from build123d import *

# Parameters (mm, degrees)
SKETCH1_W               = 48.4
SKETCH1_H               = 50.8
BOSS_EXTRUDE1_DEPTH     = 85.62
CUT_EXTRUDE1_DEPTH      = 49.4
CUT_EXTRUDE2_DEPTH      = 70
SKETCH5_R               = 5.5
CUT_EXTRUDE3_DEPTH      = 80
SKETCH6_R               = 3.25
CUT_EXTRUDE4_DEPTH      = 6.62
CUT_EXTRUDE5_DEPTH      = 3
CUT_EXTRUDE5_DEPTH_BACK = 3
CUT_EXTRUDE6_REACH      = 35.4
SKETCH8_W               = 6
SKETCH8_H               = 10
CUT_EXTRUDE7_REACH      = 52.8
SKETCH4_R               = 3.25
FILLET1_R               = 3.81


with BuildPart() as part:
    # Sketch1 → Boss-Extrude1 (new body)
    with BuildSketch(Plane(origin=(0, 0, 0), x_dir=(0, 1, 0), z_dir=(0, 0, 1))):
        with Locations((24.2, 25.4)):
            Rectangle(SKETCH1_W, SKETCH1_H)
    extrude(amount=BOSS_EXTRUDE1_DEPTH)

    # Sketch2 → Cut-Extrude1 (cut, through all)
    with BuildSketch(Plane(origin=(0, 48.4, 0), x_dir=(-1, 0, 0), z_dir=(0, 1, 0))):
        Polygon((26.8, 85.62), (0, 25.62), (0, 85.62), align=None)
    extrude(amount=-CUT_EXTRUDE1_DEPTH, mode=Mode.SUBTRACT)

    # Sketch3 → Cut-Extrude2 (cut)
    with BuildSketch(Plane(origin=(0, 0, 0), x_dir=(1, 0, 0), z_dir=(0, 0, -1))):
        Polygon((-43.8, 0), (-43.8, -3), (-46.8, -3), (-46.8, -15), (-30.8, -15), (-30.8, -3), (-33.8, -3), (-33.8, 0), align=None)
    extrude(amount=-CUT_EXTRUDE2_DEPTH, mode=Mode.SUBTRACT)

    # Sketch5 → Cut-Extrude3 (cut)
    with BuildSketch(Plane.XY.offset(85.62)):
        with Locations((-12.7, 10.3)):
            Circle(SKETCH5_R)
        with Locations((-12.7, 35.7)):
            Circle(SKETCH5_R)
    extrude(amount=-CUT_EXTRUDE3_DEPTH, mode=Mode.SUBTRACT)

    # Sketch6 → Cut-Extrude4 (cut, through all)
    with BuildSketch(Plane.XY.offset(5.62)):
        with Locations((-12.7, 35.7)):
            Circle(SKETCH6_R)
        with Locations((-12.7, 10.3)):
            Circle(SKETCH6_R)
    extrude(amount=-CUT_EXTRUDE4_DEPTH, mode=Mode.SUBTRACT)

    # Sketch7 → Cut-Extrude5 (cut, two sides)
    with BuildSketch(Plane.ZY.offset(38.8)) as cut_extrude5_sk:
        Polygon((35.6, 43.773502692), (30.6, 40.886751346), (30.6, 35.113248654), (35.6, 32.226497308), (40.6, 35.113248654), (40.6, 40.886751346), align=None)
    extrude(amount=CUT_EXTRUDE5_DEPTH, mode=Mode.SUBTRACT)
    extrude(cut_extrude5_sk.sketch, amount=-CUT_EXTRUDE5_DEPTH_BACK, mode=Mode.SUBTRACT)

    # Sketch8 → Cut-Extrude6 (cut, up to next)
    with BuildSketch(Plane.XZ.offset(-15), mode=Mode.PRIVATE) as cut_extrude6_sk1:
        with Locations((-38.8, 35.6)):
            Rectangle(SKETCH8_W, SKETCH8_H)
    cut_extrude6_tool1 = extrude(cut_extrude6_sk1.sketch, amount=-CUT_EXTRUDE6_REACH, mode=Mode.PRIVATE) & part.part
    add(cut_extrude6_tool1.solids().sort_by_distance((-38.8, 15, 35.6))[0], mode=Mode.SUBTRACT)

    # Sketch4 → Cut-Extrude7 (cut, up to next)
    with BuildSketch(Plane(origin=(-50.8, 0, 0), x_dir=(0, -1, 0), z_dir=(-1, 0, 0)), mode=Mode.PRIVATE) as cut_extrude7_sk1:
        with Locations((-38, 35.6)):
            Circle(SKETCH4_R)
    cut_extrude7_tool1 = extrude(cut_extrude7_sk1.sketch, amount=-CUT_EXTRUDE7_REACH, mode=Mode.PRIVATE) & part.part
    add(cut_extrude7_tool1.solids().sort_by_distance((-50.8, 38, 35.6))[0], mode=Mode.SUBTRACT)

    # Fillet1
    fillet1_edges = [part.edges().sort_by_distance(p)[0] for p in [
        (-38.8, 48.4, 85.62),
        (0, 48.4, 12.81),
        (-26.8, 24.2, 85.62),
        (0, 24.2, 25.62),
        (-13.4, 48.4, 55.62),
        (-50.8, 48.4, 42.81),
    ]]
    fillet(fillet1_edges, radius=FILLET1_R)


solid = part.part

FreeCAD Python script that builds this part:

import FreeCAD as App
import Part
import Sketcher

V = App.Vector
Q = App.Units.Quantity


def edges_at(feature, points):
    """Names of the edges that pass closest to the given points."""
    edges = feature.Shape.Edges
    near = lambda p: min(range(len(edges)), key=lambda i: edges[i].distToShape(Part.Vertex(*p))[0])
    return sorted({f"Edge{near(p) + 1}" for p in points})

doc = App.newDocument("Part")
body = doc.addObject("PartDesign::Body", "Body")

sketch1 = body.newObject("Sketcher::SketchObject", "Sketch")
sketch1.AttachmentSupport = (doc.getObject("XY_Plane"), [""])
sketch1.MapMode = "FlatFace"
sketch1.addGeometry(Part.LineSegment(V(-51, 0, 0), V(0, 0, 0)), False)
sketch1.addGeometry(Part.LineSegment(V(0, 0, 0), V(0, 48, 0)), False)
sketch1.addGeometry(Part.LineSegment(V(0, 48, 0), V(-51, 48, 0)), False)
sketch1.addGeometry(Part.LineSegment(V(-51, 48, 0), V(-51, 0, 0)), False)
sketch1.addConstraint(Sketcher.Constraint("Coincident", 0, 2, 1, 1))
sketch1.addConstraint(Sketcher.Constraint("Coincident", 1, 2, 2, 1))
sketch1.addConstraint(Sketcher.Constraint("Coincident", 2, 2, 3, 1))
sketch1.addConstraint(Sketcher.Constraint("Coincident", 3, 2, 0, 1))
sketch1.addConstraint(Sketcher.Constraint("Horizontal", 0))
sketch1.addConstraint(Sketcher.Constraint("Vertical", 1))
sketch1.addConstraint(Sketcher.Constraint("Horizontal", 2))
sketch1.addConstraint(Sketcher.Constraint("Vertical", 3))
sketch1.addConstraint(Sketcher.Constraint("Coincident", 0, 2, -1, 1))
sketch1.addConstraint(Sketcher.Constraint("DistanceX", 0, 1, 0, 2, Q("50.8 mm")))
sketch1.addConstraint(Sketcher.Constraint("DistanceY", 1, 1, 1, 2, Q("48.4 mm")))
pad1 = body.newObject("PartDesign::Pad", "Pad")
pad1.Profile = sketch1
pad1.Length = 85.62

sketch2 = body.newObject("Sketcher::SketchObject", "Sketch001")
sketch2.AttachmentSupport = (doc.getObject("XZ_Plane"), [""])
sketch2.MapMode = "FlatFace"
sketch2.AttachmentOffset = App.Placement(V(0, 0, -48.4), App.Rotation())
sketch2.addGeometry(Part.LineSegment(V(0, 26, 0), V(-27, 86, 0)), False)
sketch2.addGeometry(Part.LineSegment(V(-27, 86, 0), V(0, 86, 0)), False)
sketch2.addGeometry(Part.LineSegment(V(0, 86, 0), V(0, 26, 0)), False)
sketch2.addConstraint(Sketcher.Constraint("Coincident", 0, 2, 1, 1))
sketch2.addConstraint(Sketcher.Constraint("Coincident", 1, 2, 2, 1))
sketch2.addConstraint(Sketcher.Constraint("Coincident", 2, 2, 0, 1))
sketch2.addConstraint(Sketcher.Constraint("Horizontal", 1))
sketch2.addConstraint(Sketcher.Constraint("Vertical", 2))
sketch2.addConstraint(Sketcher.Constraint("PointOnObject", 1, 2, -2))
sketch2.addConstraint(Sketcher.Constraint("DistanceY", 2, 2, 2, 1, Q("60 mm")))
sketch2.addConstraint(Sketcher.Constraint("DistanceX", 1, 1, 1, 2, Q("26.8 mm")))
sketch2.addConstraint(Sketcher.Constraint("DistanceY", -1, 1, 0, 2, Q("85.62 mm")))
pocket1 = body.newObject("PartDesign::Pocket", "Pocket")
pocket1.Profile = sketch2
pocket1.Type = "ThroughAll"
pocket1.Reversed = True

sketch3 = body.newObject("Sketcher::SketchObject", "Sketch002")
sketch3.AttachmentSupport = (doc.getObject("XY_Plane"), [""])
sketch3.MapMode = "FlatFace"
sketch3.addGeometry(Part.LineSegment(V(-43.8, 0, 0), V(-43.8, 3, 0)), False)
sketch3.addGeometry(Part.LineSegment(V(-43.8, 3, 0), V(-46.8, 3, 0)), False)
sketch3.addGeometry(Part.LineSegment(V(-46.8, 3, 0), V(-46.8, 15, 0)), False)
sketch3.addGeometry(Part.LineSegment(V(-46.8, 15, 0), V(-30.8, 15, 0)), False)
sketch3.addGeometry(Part.LineSegment(V(-30.8, 15, 0), V(-30.8, 3, 0)), False)
sketch3.addGeometry(Part.LineSegment(V(-30.8, 3, 0), V(-33.8, 3, 0)), False)
sketch3.addGeometry(Part.LineSegment(V(-33.8, 3, 0), V(-33.8, 0, 0)), False)
sketch3.addGeometry(Part.LineSegment(V(-33.8, 0, 0), V(-43.8, 0, 0)), False)
sketch3.addConstraint(Sketcher.Constraint("Coincident", 0, 2, 1, 1))
sketch3.addConstraint(Sketcher.Constraint("Coincident", 1, 2, 2, 1))
sketch3.addConstraint(Sketcher.Constraint("Coincident", 2, 2, 3, 1))
sketch3.addConstraint(Sketcher.Constraint("Coincident", 3, 2, 4, 1))
sketch3.addConstraint(Sketcher.Constraint("Coincident", 4, 2, 5, 1))
sketch3.addConstraint(Sketcher.Constraint("Coincident", 5, 2, 6, 1))
sketch3.addConstraint(Sketcher.Constraint("Coincident", 6, 2, 7, 1))
sketch3.addConstraint(Sketcher.Constraint("Coincident", 7, 2, 0, 1))
sketch3.addConstraint(Sketcher.Constraint("Vertical", 0))
sketch3.addConstraint(Sketcher.Constraint("Horizontal", 1))
sketch3.addConstraint(Sketcher.Constraint("Vertical", 2))
sketch3.addConstraint(Sketcher.Constraint("Horizontal", 3))
sketch3.addConstraint(Sketcher.Constraint("Vertical", 4))
sketch3.addConstraint(Sketcher.Constraint("Horizontal", 5))
sketch3.addConstraint(Sketcher.Constraint("Vertical", 6))
sketch3.addConstraint(Sketcher.Constraint("Horizontal", 7))
sketch3.addConstraint(Sketcher.Constraint("PointOnObject", 6, 2, -1))
sketch3.addConstraint(Sketcher.Constraint("Horizontal", 1, 2, 4, 2))
sketch3.addConstraint(Sketcher.Constraint("Equal", 1, 5))
sketch3.addConstraint(Sketcher.Constraint("Equal", 5, 0))
sketch3.addConstraint(Sketcher.Constraint("DistanceX", 1, 2, 1, 1, Q("3 mm")))
sketch3.addConstraint(Sketcher.Constraint("DistanceX", 3, 1, 3, 2, Q("16 mm")))
sketch3.addConstraint(Sketcher.Constraint("DistanceY", 2, 1, 2, 2, Q("12 mm")))
sketch3.addConstraint(Sketcher.Constraint("DistanceX", 0, 2, -1, 1, Q("43.8 mm")))
pocket2 = body.newObject("PartDesign::Pocket", "Pocket001")
pocket2.Profile = sketch3
pocket2.Length = 70
pocket2.Reversed = True

sketch4 = body.newObject("Sketcher::SketchObject", "Sketch003")
sketch4.AttachmentSupport = (doc.getObject("XY_Plane"), [""])
sketch4.MapMode = "FlatFace"
sketch4.AttachmentOffset = App.Placement(V(0, 0, 85.62), App.Rotation())
sketch4.addGeometry(Part.Circle(V(-13, 10, 0), V(0, 0, 1), 6), False)
sketch4.addGeometry(Part.Circle(V(-13, 36, 0), V(0, 0, 1), 6), False)
sketch4.addConstraint(Sketcher.Constraint("Equal", 0, 1))
sketch4.addConstraint(Sketcher.Constraint("Vertical", 0, 3, 1, 3))
sketch4.addConstraint(Sketcher.Constraint("Diameter", 0, Q("11 mm")))
sketch4.addConstraint(Sketcher.Constraint("DistanceX", 0, 3, -1, 1, Q("12.7 mm")))
sketch4.addConstraint(Sketcher.Constraint("DistanceY", -1, 1, 0, 3, Q("10.3 mm")))
sketch4.addConstraint(Sketcher.Constraint("DistanceY", -1, 1, 1, 3, Q("35.7 mm")))
pocket3 = body.newObject("PartDesign::Pocket", "Pocket002")
pocket3.Profile = sketch4
pocket3.Length = 80

sketch5 = body.newObject("Sketcher::SketchObject", "Sketch004")
sketch5.AttachmentSupport = (doc.getObject("XY_Plane"), [""])
sketch5.MapMode = "FlatFace"
sketch5.AttachmentOffset = App.Placement(V(0, 0, 5.62), App.Rotation())
sketch5.addGeometry(Part.Circle(V(-12.7, 35.7, 0), V(0, 0, 1), 3.2), False)
sketch5.addGeometry(Part.Circle(V(-12.7, 10.3, 0), V(0, 0, 1), 3.2), False)
sketch5.addConstraint(Sketcher.Constraint("Equal", 0, 1))
sketch5.addConstraint(Sketcher.Constraint("Vertical", 0, 3, 1, 3))
sketch5.addConstraint(Sketcher.Constraint("Diameter", 0, Q("6.5 mm")))
sketch5.addConstraint(Sketcher.Constraint("DistanceX", 0, 3, -1, 1, Q("12.7 mm")))
sketch5.addConstraint(Sketcher.Constraint("DistanceY", -1, 1, 0, 3, Q("35.7 mm")))
sketch5.addConstraint(Sketcher.Constraint("DistanceY", -1, 1, 1, 3, Q("10.3 mm")))
pocket4 = body.newObject("PartDesign::Pocket", "Pocket003")
pocket4.Profile = sketch5
pocket4.Type = "ThroughAll"

sketch6 = body.newObject("Sketcher::SketchObject", "Sketch005")
sketch6.AttachmentSupport = (doc.getObject("YZ_Plane"), [""])
sketch6.MapMode = "FlatFace"
sketch6.AttachmentOffset = App.Placement(V(0, 0, -38.8), App.Rotation())
sketch6.addGeometry(Part.LineSegment(V(44, 36, 0), V(41, 31, 0)), False)
sketch6.addGeometry(Part.LineSegment(V(41, 31, 0), V(35, 31, 0)), False)
sketch6.addGeometry(Part.LineSegment(V(35, 31, 0), V(32, 36, 0)), False)
sketch6.addGeometry(Part.LineSegment(V(32, 36, 0), V(35, 41, 0)), False)
sketch6.addGeometry(Part.LineSegment(V(35, 41, 0), V(41, 41, 0)), False)
sketch6.addGeometry(Part.LineSegment(V(41, 41, 0), V(44, 36, 0)), False)
sketch6.addConstraint(Sketcher.Constraint("Coincident", 0, 2, 1, 1))
sketch6.addConstraint(Sketcher.Constraint("Coincident", 1, 2, 2, 1))
sketch6.addConstraint(Sketcher.Constraint("Coincident", 2, 2, 3, 1))
sketch6.addConstraint(Sketcher.Constraint("Coincident", 3, 2, 4, 1))
sketch6.addConstraint(Sketcher.Constraint("Coincident", 4, 2, 5, 1))
sketch6.addConstraint(Sketcher.Constraint("Coincident", 5, 2, 0, 1))
sketch6.addConstraint(Sketcher.Constraint("Horizontal", 1))
sketch6.addConstraint(Sketcher.Constraint("Horizontal", 4))
sketch6.addConstraint(Sketcher.Constraint("Parallel", 0, 3))
sketch6.addConstraint(Sketcher.Constraint("Parallel", 2, 5))
sketch6.addConstraint(Sketcher.Constraint("Horizontal", 2, 2, 5, 2))
sketch6.addConstraint(Sketcher.Constraint("Vertical", 1, 2, 3, 2))
sketch6.addConstraint(Sketcher.Constraint("Vertical", 0, 2, 4, 2))
sketch6.addConstraint(Sketcher.Constraint("Angle", 0, Q("-120 deg")))
sketch6.addConstraint(Sketcher.Constraint("DistanceY", 1, 2, 2, 2, Q("5 mm")))
sketch6.addConstraint(Sketcher.Constraint("DistanceY", -1, 1, 0, 2, Q("30.6 mm")))
sketch6.addConstraint(Sketcher.Constraint("DistanceX", 1, 2, 1, 1, Q("5.773503 mm")))
sketch6.addConstraint(Sketcher.Constraint("DistanceX", -1, 1, 0, 2, Q("40.886751 mm")))
pocket5 = body.newObject("PartDesign::Pocket", "Pocket004")
pocket5.Profile = sketch6
pocket5.Type = "TwoLengths"
pocket5.Length = 3
pocket5.Length2 = 3

sketch7 = body.newObject("Sketcher::SketchObject", "Sketch006")
sketch7.AttachmentSupport = (doc.getObject("XZ_Plane"), [""])
sketch7.MapMode = "FlatFace"
sketch7.AttachmentOffset = App.Placement(V(0, 0, -15), App.Rotation())
sketch7.addGeometry(Part.LineSegment(V(-42, 41, 0), V(-42, 31, 0)), False)
sketch7.addGeometry(Part.LineSegment(V(-42, 31, 0), V(-36, 31, 0)), False)
sketch7.addGeometry(Part.LineSegment(V(-36, 31, 0), V(-36, 41, 0)), False)
sketch7.addGeometry(Part.LineSegment(V(-36, 41, 0), V(-42, 41, 0)), False)
sketch7.addConstraint(Sketcher.Constraint("Coincident", 0, 2, 1, 1))
sketch7.addConstraint(Sketcher.Constraint("Coincident", 1, 2, 2, 1))
sketch7.addConstraint(Sketcher.Constraint("Coincident", 2, 2, 3, 1))
sketch7.addConstraint(Sketcher.Constraint("Coincident", 3, 2, 0, 1))
sketch7.addConstraint(Sketcher.Constraint("Vertical", 0))
sketch7.addConstraint(Sketcher.Constraint("Horizontal", 1))
sketch7.addConstraint(Sketcher.Constraint("Vertical", 2))
sketch7.addConstraint(Sketcher.Constraint("Horizontal", 3))
sketch7.addConstraint(Sketcher.Constraint("DistanceX", 1, 1, 1, 2, Q("6 mm")))
sketch7.addConstraint(Sketcher.Constraint("DistanceY", 0, 2, 0, 1, Q("10 mm")))
sketch7.addConstraint(Sketcher.Constraint("DistanceX", 0, 2, -1, 1, Q("41.8 mm")))
sketch7.addConstraint(Sketcher.Constraint("DistanceY", -1, 1, 0, 2, Q("30.6 mm")))
pocket6 = body.newObject("PartDesign::Pocket", "Pocket005")
pocket6.Profile = sketch7
pocket6.Length = 20.113249

sketch8 = body.newObject("Sketcher::SketchObject", "Sketch007")
sketch8.AttachmentSupport = (doc.getObject("YZ_Plane"), [""])
sketch8.MapMode = "FlatFace"
sketch8.AttachmentOffset = App.Placement(V(0, 0, -50.8), App.Rotation())
sketch8.addGeometry(Part.Circle(V(38, 35.6, 0), V(0, 0, 1), 3.2), False)
sketch8.addConstraint(Sketcher.Constraint("Diameter", 0, Q("6.5 mm")))
sketch8.addConstraint(Sketcher.Constraint("DistanceX", -1, 1, 0, 3, Q("38 mm")))
sketch8.addConstraint(Sketcher.Constraint("DistanceY", -1, 1, 0, 3, Q("35.6 mm")))
pocket7 = body.newObject("PartDesign::Pocket", "Pocket006")
pocket7.Profile = sketch8
pocket7.Type = "UpToFirst"
pocket7.Reversed = True
doc.recompute()

fillet = body.newObject("PartDesign::Fillet", "Fillet")
fillet.Base = (pocket7, edges_at(pocket7, [
    (-38.8, 48.4, 85.62),
    (0, 48.4, 12.81),
    (-26.8, 24.2, 85.62),
    (0, 24.2, 25.62),
    (-13.4, 48.4, 55.62),
    (-50.8, 48.4, 42.81),
]))
fillet.Radius = 3.81

doc.recompute()
